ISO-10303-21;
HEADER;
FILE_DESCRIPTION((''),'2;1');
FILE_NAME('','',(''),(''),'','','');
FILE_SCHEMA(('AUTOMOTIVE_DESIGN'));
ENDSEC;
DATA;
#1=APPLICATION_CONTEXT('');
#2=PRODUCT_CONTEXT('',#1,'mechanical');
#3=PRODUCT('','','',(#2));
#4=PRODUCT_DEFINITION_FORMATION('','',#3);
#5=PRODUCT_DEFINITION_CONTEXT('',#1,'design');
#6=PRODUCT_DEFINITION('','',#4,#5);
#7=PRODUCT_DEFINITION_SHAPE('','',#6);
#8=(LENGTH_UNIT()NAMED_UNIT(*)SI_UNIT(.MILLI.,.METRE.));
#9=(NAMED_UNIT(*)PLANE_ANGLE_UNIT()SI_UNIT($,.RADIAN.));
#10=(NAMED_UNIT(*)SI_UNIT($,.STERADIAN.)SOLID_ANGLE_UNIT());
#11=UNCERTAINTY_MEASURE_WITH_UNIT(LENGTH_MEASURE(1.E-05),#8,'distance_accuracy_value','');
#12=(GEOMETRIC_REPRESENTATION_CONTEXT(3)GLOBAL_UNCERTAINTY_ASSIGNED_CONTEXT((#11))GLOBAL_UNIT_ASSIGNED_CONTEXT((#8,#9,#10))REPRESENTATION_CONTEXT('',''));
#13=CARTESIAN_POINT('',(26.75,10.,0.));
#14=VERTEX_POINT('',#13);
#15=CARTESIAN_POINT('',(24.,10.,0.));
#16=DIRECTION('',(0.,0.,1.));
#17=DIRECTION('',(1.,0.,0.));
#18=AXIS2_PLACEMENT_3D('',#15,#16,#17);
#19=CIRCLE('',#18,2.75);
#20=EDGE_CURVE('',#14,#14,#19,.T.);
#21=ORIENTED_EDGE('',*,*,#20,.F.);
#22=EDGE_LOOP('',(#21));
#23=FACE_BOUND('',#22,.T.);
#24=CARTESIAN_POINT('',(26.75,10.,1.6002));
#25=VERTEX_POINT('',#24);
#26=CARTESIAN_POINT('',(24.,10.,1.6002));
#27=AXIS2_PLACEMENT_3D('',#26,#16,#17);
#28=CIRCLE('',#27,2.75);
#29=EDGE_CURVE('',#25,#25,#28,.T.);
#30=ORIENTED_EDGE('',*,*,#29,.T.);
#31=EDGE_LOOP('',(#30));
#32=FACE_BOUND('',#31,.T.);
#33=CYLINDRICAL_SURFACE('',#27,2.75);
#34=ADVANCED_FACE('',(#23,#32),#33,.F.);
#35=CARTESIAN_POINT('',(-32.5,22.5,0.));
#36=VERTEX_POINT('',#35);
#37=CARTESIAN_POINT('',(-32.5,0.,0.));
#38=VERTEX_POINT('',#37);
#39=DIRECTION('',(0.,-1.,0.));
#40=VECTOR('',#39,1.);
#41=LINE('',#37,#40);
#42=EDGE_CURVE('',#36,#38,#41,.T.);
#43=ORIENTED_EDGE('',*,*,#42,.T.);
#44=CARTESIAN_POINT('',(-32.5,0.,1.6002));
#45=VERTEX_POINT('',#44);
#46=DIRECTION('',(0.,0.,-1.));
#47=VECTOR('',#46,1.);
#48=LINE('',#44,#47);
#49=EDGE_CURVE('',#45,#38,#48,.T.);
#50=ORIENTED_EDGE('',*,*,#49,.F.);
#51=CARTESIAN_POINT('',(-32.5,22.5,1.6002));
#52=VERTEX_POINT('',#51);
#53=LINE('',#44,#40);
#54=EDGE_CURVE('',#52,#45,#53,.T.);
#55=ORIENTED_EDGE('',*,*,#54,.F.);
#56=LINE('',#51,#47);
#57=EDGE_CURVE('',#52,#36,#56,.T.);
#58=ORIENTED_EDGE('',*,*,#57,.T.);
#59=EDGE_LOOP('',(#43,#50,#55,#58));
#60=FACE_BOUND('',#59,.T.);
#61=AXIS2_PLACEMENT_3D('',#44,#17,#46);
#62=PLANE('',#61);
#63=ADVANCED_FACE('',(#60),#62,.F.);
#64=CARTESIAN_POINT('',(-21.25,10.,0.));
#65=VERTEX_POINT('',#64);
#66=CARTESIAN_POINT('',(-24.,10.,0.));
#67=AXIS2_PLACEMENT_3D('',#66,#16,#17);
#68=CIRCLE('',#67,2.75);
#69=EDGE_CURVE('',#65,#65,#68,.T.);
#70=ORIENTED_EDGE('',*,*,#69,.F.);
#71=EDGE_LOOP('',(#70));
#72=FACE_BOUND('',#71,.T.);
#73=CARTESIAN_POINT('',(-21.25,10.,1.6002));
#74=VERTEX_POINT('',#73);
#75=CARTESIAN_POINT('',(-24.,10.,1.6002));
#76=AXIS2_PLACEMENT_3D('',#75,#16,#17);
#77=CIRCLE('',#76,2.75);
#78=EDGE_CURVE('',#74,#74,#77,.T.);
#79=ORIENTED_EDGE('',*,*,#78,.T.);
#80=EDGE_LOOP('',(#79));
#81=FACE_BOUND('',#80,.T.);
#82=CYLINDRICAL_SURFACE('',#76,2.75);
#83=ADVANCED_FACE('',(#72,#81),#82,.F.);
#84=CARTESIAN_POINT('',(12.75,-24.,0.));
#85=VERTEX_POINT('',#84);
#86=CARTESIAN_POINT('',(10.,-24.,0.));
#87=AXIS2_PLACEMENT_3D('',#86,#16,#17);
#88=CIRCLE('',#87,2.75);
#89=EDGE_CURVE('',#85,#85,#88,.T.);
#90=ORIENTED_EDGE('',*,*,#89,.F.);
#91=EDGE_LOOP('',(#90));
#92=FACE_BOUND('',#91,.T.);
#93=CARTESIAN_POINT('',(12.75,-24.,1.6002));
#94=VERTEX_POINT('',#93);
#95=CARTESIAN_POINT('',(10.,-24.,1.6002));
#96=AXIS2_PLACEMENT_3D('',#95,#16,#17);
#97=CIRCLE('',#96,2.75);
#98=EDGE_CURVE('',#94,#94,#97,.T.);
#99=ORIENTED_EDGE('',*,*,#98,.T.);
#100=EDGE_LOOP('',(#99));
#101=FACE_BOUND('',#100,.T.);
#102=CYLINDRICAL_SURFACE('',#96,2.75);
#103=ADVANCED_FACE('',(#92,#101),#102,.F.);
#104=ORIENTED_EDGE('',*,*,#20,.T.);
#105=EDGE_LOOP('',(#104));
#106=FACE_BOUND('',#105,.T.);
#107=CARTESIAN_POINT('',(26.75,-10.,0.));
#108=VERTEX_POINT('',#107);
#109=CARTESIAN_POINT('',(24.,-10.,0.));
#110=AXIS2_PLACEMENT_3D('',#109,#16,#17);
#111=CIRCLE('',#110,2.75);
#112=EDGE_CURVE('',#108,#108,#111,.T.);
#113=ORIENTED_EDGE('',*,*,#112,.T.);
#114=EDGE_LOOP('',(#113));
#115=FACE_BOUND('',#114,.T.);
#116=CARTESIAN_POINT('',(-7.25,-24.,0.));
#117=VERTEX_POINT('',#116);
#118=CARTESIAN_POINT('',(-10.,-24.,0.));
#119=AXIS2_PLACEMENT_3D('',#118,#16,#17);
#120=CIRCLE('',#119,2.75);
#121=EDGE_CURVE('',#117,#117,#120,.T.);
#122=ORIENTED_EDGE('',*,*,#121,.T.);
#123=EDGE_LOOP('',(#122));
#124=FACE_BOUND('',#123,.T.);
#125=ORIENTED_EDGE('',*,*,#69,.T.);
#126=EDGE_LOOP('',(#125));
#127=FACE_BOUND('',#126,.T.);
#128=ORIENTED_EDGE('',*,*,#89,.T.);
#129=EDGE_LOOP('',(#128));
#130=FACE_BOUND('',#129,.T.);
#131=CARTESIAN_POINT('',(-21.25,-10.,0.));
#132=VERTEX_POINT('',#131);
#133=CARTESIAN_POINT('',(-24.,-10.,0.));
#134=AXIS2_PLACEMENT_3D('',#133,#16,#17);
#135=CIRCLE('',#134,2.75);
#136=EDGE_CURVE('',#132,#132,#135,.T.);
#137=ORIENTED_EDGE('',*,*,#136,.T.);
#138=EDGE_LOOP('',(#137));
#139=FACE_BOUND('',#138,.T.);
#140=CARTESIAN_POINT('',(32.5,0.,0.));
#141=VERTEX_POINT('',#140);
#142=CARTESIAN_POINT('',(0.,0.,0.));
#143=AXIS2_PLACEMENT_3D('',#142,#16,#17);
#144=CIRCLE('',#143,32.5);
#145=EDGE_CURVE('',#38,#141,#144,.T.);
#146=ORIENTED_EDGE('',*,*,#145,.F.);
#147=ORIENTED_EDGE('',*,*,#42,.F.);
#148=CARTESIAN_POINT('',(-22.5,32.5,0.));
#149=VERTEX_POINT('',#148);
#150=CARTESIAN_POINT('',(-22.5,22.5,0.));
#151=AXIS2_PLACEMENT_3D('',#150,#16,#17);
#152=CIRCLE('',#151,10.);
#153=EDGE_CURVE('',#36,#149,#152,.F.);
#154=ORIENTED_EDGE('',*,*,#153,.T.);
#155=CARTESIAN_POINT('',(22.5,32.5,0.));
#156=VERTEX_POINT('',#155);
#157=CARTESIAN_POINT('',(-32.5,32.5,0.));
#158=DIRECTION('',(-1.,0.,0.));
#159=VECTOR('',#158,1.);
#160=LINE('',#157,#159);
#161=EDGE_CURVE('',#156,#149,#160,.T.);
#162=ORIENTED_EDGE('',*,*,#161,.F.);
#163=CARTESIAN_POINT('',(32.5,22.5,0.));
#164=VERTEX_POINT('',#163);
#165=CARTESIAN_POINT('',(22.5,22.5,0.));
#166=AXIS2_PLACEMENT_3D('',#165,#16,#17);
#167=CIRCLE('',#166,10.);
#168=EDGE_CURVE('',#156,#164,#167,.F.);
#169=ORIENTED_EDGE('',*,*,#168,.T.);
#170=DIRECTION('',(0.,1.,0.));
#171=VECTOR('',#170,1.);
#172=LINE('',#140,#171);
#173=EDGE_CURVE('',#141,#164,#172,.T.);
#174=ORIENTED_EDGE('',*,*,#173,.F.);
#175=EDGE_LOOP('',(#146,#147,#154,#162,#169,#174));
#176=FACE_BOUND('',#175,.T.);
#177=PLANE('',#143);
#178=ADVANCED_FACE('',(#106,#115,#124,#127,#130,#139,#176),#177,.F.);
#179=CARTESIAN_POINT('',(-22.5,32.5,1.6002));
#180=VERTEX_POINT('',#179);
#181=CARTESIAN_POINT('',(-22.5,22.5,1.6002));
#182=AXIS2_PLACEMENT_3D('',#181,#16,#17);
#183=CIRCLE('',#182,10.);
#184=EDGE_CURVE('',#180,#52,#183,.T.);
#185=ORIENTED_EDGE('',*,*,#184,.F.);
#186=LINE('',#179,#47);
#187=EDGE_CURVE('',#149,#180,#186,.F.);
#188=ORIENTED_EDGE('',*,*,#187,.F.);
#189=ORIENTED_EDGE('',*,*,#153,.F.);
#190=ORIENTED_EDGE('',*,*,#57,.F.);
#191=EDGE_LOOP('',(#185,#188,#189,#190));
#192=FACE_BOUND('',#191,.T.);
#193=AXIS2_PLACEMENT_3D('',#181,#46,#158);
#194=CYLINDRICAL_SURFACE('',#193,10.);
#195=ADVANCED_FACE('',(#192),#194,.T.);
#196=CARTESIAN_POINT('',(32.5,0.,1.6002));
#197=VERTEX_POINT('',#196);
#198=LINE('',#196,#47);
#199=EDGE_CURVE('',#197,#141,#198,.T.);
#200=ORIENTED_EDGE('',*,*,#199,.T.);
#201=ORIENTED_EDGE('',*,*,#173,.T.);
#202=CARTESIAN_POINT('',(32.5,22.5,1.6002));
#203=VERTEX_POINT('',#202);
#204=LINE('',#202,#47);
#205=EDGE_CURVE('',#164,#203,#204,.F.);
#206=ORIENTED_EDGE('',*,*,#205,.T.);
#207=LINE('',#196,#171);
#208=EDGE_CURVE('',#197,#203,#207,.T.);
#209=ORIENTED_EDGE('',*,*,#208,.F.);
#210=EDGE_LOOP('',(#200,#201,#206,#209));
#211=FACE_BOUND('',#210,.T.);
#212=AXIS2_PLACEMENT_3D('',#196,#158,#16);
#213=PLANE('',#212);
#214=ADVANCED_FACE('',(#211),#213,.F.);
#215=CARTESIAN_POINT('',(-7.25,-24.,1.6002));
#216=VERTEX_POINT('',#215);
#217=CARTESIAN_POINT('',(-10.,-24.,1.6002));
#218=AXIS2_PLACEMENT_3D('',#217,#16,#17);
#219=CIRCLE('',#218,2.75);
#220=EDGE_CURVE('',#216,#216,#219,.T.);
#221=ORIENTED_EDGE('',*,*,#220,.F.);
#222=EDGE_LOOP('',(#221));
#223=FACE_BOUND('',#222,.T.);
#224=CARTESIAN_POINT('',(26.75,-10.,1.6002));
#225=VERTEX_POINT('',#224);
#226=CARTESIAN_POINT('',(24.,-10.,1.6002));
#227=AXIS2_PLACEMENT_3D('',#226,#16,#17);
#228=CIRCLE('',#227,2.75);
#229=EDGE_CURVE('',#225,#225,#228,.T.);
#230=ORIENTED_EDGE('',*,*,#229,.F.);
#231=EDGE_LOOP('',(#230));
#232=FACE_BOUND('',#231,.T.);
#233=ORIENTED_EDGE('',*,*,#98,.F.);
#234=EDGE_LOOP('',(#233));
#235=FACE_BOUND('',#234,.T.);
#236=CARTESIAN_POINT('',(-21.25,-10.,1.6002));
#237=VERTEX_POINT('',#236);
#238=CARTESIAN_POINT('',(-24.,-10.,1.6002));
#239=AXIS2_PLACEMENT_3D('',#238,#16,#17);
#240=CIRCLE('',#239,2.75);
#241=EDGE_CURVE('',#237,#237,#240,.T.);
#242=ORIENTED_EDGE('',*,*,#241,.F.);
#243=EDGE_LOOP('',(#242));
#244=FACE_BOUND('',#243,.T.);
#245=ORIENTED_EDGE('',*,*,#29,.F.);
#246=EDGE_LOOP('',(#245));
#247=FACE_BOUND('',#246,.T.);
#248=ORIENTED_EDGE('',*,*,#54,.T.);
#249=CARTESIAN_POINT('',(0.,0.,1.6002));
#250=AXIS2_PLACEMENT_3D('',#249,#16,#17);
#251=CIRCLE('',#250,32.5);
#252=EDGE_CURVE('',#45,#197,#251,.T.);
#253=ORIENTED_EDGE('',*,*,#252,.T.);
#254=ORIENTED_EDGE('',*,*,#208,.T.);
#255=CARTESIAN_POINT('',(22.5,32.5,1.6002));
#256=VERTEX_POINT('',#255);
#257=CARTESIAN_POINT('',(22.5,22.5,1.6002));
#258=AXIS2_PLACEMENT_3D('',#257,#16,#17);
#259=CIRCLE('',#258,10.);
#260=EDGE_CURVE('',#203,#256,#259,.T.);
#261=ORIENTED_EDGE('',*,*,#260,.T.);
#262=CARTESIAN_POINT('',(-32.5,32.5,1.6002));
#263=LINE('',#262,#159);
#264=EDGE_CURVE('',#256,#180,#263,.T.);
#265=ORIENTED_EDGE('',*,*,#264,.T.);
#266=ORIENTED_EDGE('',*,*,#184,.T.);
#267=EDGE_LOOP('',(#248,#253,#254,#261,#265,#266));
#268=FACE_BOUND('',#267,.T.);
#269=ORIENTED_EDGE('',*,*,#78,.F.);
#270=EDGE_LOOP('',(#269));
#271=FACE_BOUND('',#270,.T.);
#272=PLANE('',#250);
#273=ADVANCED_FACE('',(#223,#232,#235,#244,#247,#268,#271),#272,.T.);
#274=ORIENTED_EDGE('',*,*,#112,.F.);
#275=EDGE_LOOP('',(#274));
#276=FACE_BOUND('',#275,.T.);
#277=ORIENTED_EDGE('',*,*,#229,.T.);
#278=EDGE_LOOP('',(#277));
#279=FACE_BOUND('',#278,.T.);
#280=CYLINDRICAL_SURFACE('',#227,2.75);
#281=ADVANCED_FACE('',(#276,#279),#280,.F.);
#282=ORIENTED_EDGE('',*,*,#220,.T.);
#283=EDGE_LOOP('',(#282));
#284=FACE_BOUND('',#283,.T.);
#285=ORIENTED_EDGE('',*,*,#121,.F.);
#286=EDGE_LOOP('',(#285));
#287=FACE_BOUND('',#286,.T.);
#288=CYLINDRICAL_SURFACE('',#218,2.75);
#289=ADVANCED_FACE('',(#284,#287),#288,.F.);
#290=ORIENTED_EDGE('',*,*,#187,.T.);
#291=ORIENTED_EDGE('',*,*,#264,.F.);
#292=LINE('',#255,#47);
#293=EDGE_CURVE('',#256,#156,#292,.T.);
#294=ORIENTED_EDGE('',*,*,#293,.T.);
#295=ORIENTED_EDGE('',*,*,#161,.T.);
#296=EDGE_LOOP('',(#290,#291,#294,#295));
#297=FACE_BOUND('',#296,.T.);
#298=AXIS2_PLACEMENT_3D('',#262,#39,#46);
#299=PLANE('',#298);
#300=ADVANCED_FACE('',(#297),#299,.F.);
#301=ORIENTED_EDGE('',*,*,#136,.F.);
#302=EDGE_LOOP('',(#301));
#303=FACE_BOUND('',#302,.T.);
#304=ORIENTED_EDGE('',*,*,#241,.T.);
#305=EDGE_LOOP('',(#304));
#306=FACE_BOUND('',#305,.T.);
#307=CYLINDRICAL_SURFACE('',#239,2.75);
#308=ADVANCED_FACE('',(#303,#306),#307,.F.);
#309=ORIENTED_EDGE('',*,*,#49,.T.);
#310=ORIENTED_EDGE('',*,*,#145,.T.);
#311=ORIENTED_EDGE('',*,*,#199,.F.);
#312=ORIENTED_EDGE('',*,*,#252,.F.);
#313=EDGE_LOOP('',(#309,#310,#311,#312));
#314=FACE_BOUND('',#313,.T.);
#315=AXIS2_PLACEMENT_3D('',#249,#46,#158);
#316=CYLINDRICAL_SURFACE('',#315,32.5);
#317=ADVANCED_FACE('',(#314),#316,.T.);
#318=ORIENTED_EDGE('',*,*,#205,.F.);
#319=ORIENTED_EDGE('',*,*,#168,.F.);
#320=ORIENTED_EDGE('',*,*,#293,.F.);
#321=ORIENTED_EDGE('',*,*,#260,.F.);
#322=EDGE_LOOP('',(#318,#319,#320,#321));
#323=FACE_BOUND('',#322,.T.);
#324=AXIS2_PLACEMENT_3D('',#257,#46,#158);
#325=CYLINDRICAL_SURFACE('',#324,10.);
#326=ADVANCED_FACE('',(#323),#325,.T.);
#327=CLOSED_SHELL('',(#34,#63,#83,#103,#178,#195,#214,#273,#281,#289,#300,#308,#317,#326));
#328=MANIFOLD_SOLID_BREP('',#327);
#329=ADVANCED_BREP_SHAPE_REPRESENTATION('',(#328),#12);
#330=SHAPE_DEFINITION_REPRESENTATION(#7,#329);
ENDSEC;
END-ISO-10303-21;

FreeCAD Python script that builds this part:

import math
import FreeCAD as App
import Part
import Sketcher


def edges_at(feature, points):
    """Names of the edges that pass closest to the given points."""
    edges = feature.Shape.Edges
    near = lambda p: min(range(len(edges)), key=lambda i: edges[i].distToShape(Part.Vertex(*p))[0])
    return sorted({f"Edge{near(p) + 1}" for p in points})

doc = App.newDocument("Part")
body = doc.addObject("PartDesign::Body", "Body")

sketch1 = doc.addObject("Sketcher::SketchObject", "Sketch")
body.addObject(sketch1)
sketch1.AttachmentSupport = (doc.XY_Plane, [""])
sketch1.MapMode = "FlatFace"
sketch1.addGeometry([
    Part.LineSegment(App.Vector(-32.5, 32.5, 0), App.Vector(-32.5, 0, 0)),
    Part.ArcOfCircle(Part.Circle(App.Vector(0, 0, 0), App.Vector(0, 0, 1), 32.5), math.radians(180), math.radians(360)),
    Part.LineSegment(App.Vector(32.5, 0, 0), App.Vector(32.5, 32.5, 0)),
    Part.LineSegment(App.Vector(32.5, 32.5, 0), App.Vector(-32.5, 32.5, 0)),
], False)
sketch1.addConstraint([
    Sketcher.Constraint("Tangent", 0, 2, 1, 1),
    Sketcher.Constraint("Tangent", 1, 2, 2, 1),
    Sketcher.Constraint("Coincident", 2, 2, 3, 1),
    Sketcher.Constraint("Coincident", 3, 2, 0, 1),
    Sketcher.Constraint("Vertical", 0),
    Sketcher.Constraint("Vertical", 2),
    Sketcher.Constraint("Horizontal", 3),
    Sketcher.Constraint("Coincident", 1, 3, -1, 1),
    Sketcher.Constraint("Radius", 1, 32.5),
    Sketcher.Constraint("DistanceY", 0, 2, 0, 1, 32.5),
])
pad1 = doc.addObject("PartDesign::Pad", "Pad")
body.addObject(pad1)
pad1.Profile = sketch1
pad1.Length = 1.6002

sketch2 = doc.addObject("Sketcher::SketchObject", "Sketch001")
body.addObject(sketch2)
sketch2.AttachmentSupport = (doc.XY_Plane, [""])
sketch2.MapMode = "FlatFace"
sketch2.AttachmentOffset = App.Placement(App.Vector(0, 0, 1.6002), App.Rotation())
sketch2.addGeometry([
    Part.Circle(App.Vector(24, -10, 0), App.Vector(0, 0, 1), 2.75),
    Part.Circle(App.Vector(10, -24, 0), App.Vector(0, 0, 1), 2.75),
    Part.Circle(App.Vector(-10, -24, 0), App.Vector(0, 0, 1), 2.75),
    Part.Circle(App.Vector(-24, -10, 0), App.Vector(0, 0, 1), 2.75),
    Part.Circle(App.Vector(-24, 10, 0), App.Vector(0, 0, 1), 2.75),
    Part.Circle(App.Vector(24, 10, 0), App.Vector(0, 0, 1), 2.75),
], False)
sketch2.addConstraint([
    Sketcher.Constraint("Equal", 0, 1),
    Sketcher.Constraint("Equal", 1, 2),
    Sketcher.Constraint("Equal", 2, 3),
    Sketcher.Constraint("Equal", 3, 4),
    Sketcher.Constraint("Equal", 4, 5),
    Sketcher.Constraint("Symmetric", 0, 3, 4, 3, -1, 1),
    Sketcher.Constraint("Symmetric", 3, 3, 5, 3, -1, 1),
    Sketcher.Constraint("Symmetric", 1, 3, 2, 3, -2),
    Sketcher.Constraint("Symmetric", 0, 3, 3, 3, -2),
    Sketcher.Constraint("Diameter", 0, 5.5),
    Sketcher.Constraint("DistanceX", -1, 1, 0, 3, 24.0),
    Sketcher.Constraint("DistanceY", 0, 3, -1, 1, 10.0),
    Sketcher.Constraint("DistanceX", -1, 1, 1, 3, 10.0),
    Sketcher.Constraint("DistanceY", 1, 3, -1, 1, 24.0),
])
doc.recompute()
hole = doc.addObject("PartDesign::Hole", "Hole")
body.addObject(hole)
hole.Profile = sketch2
hole.ThreadType = "None"
hole.Diameter = 5.5
hole.DepthType = "ThroughAll"
doc.recompute()

fillet = doc.addObject("PartDesign::Fillet", "Fillet")
body.addObject(fillet)
fillet.Base = (hole, edges_at(hole, [(-32.5, 32.5, 0.8), (32.5, 32.5, 0.8)]))
fillet.Radius = 10

doc.recompute()
